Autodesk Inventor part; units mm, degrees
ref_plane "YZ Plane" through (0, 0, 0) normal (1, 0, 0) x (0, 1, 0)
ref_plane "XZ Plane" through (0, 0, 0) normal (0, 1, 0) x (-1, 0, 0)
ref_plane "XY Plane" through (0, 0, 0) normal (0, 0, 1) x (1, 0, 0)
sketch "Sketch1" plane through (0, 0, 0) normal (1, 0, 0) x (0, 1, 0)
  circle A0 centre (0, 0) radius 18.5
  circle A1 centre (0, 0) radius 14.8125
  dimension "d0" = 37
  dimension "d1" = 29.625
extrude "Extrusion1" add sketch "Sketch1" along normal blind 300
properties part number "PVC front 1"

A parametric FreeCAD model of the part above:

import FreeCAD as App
import Part
import Sketcher
from FreeCAD import Vector
Q = App.Units.Quantity

doc = App.newDocument("Part")
body = doc.addObject("PartDesign::Body", "Body")

# Sketch on YZ plane
sketch1 = body.newObject("Sketcher::SketchObject", "Sketch")
sketch1.AttachmentSupport = (doc.getObject("YZ_Plane"), [""])
sketch1.MapMode = "FlatFace"
sketch1.addGeometry([
    Part.Circle(Vector(0, 0, 0), Vector(0, 0, 1), 18),
    Part.Circle(Vector(0, 0, 0), Vector(0, 0, 1), 15),
], False)
sketch1.addConstraint([
    Sketcher.Constraint("Coincident", 0, 3, -1, 1),
    Sketcher.Constraint("Coincident", 1, 3, -1, 1),
    Sketcher.Constraint("Diameter", 0, Q("37 mm")),
    Sketcher.Constraint("Diameter", 1, Q("29.625 mm")),
])
pad1 = body.newObject("PartDesign::Pad", "Pad")
pad1.Profile = sketch1
pad1.Length = 300

doc.recompute()
